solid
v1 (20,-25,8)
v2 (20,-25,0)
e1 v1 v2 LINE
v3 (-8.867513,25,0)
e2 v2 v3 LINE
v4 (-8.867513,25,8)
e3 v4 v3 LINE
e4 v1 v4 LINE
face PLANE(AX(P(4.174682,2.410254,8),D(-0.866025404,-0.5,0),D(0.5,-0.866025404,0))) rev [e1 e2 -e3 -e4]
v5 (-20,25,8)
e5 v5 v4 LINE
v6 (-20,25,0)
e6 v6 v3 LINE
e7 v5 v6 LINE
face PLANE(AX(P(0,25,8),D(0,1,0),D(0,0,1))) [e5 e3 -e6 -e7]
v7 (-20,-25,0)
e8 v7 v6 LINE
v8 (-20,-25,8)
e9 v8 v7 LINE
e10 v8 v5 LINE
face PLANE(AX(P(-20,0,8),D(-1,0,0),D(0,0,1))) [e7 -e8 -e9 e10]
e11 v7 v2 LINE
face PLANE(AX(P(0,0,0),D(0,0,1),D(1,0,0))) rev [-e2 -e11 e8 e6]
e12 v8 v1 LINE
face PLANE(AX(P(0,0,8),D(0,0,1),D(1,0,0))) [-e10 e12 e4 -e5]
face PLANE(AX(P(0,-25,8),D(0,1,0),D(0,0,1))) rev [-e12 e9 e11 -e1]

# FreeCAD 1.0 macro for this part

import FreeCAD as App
import Part
import Sketcher
from FreeCAD import Vector
Q = App.Units.Quantity

doc = App.newDocument("Part")
body = doc.addObject("PartDesign::Body", "Body")

# Sketch on XY plane
sketch1 = doc.addObject("Sketcher::SketchObject", "Sketch")
body.addObject(sketch1)
sketch1.AttachmentSupport = (doc.XY_Plane, [""])
sketch1.MapMode = "FlatFace"
sketch1.addGeometry(Part.LineSegment(Vector(-20, -25, 0), Vector(20, -25, 0)), False)
sketch1.addGeometry(Part.LineSegment(Vector(20, -25, 0), Vector(-9, 25, 0)), False)
sketch1.addGeometry(Part.LineSegment(Vector(-9, 25, 0), Vector(-20, 25, 0)), False)
sketch1.addGeometry(Part.LineSegment(Vector(-20, 25, 0), Vector(-20, -25, 0)), False)
sketch1.addConstraint(Sketcher.Constraint("Coincident", 0, 2, 1, 1))
sketch1.addConstraint(Sketcher.Constraint("Coincident", 1, 2, 2, 1))
sketch1.addConstraint(Sketcher.Constraint("Coincident", 2, 2, 3, 1))
sketch1.addConstraint(Sketcher.Constraint("Coincident", 3, 2, 0, 1))
sketch1.addConstraint(Sketcher.Constraint("Horizontal", 0))
sketch1.addConstraint(Sketcher.Constraint("Horizontal", 2))
sketch1.addConstraint(Sketcher.Constraint("Vertical", 3))
sketch1.addConstraint(Sketcher.Constraint("Symmetric", 0, 2, 2, 2, -1, 1))
sketch1.addConstraint(Sketcher.Constraint("DistanceX", 0, 1, 0, 2, Q("40 mm")))
sketch1.addConstraint(Sketcher.Constraint("DistanceY", 3, 2, 3, 1, Q("50 mm")))
sketch1.addConstraint(Sketcher.Constraint("Angle", 1, Q("120 deg")))
pad1 = doc.addObject("PartDesign::Pad", "Pad")
body.addObject(pad1)
pad1.Profile = sketch1
pad1.Length = 8

doc.recompute()
